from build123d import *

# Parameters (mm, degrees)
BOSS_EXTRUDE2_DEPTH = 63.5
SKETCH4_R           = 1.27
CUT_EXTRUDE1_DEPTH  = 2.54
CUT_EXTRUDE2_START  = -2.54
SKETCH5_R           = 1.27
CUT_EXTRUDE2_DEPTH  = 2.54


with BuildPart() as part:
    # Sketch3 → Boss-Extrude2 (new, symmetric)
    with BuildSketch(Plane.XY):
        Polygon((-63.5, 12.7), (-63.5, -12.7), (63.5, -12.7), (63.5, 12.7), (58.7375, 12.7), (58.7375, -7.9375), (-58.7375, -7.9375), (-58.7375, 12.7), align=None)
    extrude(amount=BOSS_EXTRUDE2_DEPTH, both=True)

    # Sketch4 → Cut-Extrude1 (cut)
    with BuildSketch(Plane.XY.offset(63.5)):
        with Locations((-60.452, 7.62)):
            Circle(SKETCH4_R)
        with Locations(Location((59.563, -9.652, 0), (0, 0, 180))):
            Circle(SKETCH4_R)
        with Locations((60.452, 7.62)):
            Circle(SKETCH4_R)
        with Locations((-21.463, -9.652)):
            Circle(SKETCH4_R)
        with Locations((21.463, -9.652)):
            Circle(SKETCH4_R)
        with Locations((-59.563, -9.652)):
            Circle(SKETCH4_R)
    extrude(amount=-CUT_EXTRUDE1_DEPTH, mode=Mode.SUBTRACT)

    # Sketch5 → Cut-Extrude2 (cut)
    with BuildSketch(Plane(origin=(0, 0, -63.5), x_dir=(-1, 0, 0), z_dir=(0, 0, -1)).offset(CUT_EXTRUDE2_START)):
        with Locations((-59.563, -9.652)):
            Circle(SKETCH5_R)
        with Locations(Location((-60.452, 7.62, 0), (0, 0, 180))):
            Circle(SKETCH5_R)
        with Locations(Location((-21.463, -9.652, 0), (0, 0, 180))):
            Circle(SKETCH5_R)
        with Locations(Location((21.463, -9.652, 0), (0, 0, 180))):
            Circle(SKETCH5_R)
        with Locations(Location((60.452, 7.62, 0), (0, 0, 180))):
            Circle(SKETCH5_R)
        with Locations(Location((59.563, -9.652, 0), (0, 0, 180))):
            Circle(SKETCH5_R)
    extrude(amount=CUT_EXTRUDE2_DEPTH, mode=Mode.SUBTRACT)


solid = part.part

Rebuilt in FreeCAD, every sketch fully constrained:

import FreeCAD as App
import Part
import Sketcher

V = App.Vector
Q = App.Units.Quantity

doc = App.newDocument("Part")
body = doc.addObject("PartDesign::Body", "Body")

# Sketch on XY plane
sketch1 = doc.addObject("Sketcher::SketchObject", "Sketch")
body.addObject(sketch1)
sketch1.AttachmentSupport = (doc.XY_Plane, [""])
sketch1.MapMode = "FlatFace"
sketch1.addGeometry([
    Part.LineSegment(V(-63.5, 12.7, 0), V(-63.5, -12.7, 0)),  # 0
    Part.LineSegment(V(-63.5, -12.7, 0), V(63.5, -12.7, 0)),  # 1
    Part.LineSegment(V(63.5, -12.7, 0), V(63.5, 12.7, 0)),  # 2
    Part.LineSegment(V(63.5, 12.7, 0), V(58.7, 12.7, 0)),  # 3
    Part.LineSegment(V(58.7, 12.7, 0), V(58.7, -7.9, 0)),  # 4
    Part.LineSegment(V(58.7, -7.9, 0), V(-58.7, -7.9, 0)),  # 5
    Part.LineSegment(V(-58.7, -7.9, 0), V(-58.7, 12.7, 0)),  # 6
    Part.LineSegment(V(-58.7, 12.7, 0), V(-63.5, 12.7, 0)),  # 7
], False)
sketch1.addConstraint([
    Sketcher.Constraint("Coincident", 0, 2, 1, 1),
    Sketcher.Constraint("Coincident", 1, 2, 2, 1),
    Sketcher.Constraint("Coincident", 2, 2, 3, 1),
    Sketcher.Constraint("Coincident", 3, 2, 4, 1),
    Sketcher.Constraint("Coincident", 4, 2, 5, 1),
    Sketcher.Constraint("Coincident", 5, 2, 6, 1),
    Sketcher.Constraint("Coincident", 6, 2, 7, 1),
    Sketcher.Constraint("Coincident", 7, 2, 0, 1),
    Sketcher.Constraint("Vertical", 0),
    Sketcher.Constraint("Horizontal", 1),
    Sketcher.Constraint("Vertical", 2),
    Sketcher.Constraint("Horizontal", 3),
    Sketcher.Constraint("Vertical", 4),
    Sketcher.Constraint("Horizontal", 5),
    Sketcher.Constraint("Vertical", 6),
    Sketcher.Constraint("Horizontal", 7),
    Sketcher.Constraint("Symmetric", 0, 2, 2, 2, -1, 1),
    Sketcher.Constraint("Symmetric", 3, 2, 6, 2, -2),
    Sketcher.Constraint("DistanceX", 1, 1, 1, 2, Q("5 in")),
    Sketcher.Constraint("DistanceY", 0, 2, 0, 1, Q("1 in")),
    Sketcher.Constraint("DistanceX", 3, 2, 3, 1, Q("0.1875 in")),
    Sketcher.Constraint("DistanceY", 4, 2, 4, 1, Q("0.8125 in")),
])
pad1 = doc.addObject("PartDesign::Pad", "Pad")
body.addObject(pad1)
pad1.Profile = sketch1
pad1.Length = Q("5 in")
pad1.Midplane = True

# Sketch on XY plane
sketch2 = doc.addObject("Sketcher::SketchObject", "Sketch001")
body.addObject(sketch2)
sketch2.AttachmentSupport = (doc.XY_Plane, [""])
sketch2.MapMode = "FlatFace"
sketch2.AttachmentOffset = App.Placement(V(0, 0, 2.5 * 25.4), App.Rotation())
sketch2.addGeometry([
    Part.Circle(V(-60.5, 7.6, 0), V(0, 0, 1), 1.3),  # 0
    Part.Circle(V(59.6, -9.7, 0), V(0, 0, 1), 1.3),  # 1
    Part.Circle(V(60.5, 7.6, 0), V(0, 0, 1), 1.3),  # 2
    Part.Circle(V(-21.5, -9.7, 0), V(0, 0, 1), 1.3),  # 3
    Part.Circle(V(21.5, -9.7, 0), V(0, 0, 1), 1.3),  # 4
    Part.Circle(V(-59.6, -9.7, 0), V(0, 0, 1), 1.3),  # 5
], False)
sketch2.addConstraint([
    Sketcher.Constraint("Equal", 0, 1),
    Sketcher.Constraint("Equal", 1, 2),
    Sketcher.Constraint("Equal", 2, 3),
    Sketcher.Constraint("Equal", 3, 4),
    Sketcher.Constraint("Equal", 4, 5),
    Sketcher.Constraint("Symmetric", 0, 3, 2, 3, -2),
    Sketcher.Constraint("Symmetric", 3, 3, 4, 3, -2),
    Sketcher.Constraint("Symmetric", 1, 3, 5, 3, -2),
    Sketcher.Constraint("Horizontal", 1, 3, 3, 3),
    Sketcher.Constraint("Diameter", 0, Q("0.1 in")),
    Sketcher.Constraint("DistanceY", -1, 1, 0, 3, Q("0.3 in")),
    Sketcher.Constraint("DistanceX", 4, 3, 1, 3, Q("1.5 in")),
    Sketcher.Constraint("DistanceX", 0, 3, -1, 1, Q("2.38 in")),
    Sketcher.Constraint("DistanceY", 1, 3, -1, 1, Q("0.38 in")),
    Sketcher.Constraint("DistanceX", 3, 3, 1, 3, Q("3.19 in")),
])
pocket1 = doc.addObject("PartDesign::Pocket", "Pocket")
body.addObject(pocket1)
pocket1.Profile = sketch2
pocket1.Length = Q("0.1 in")

# Sketch on XY plane
sketch3 = doc.addObject("Sketcher::SketchObject", "Sketch002")
body.addObject(sketch3)
sketch3.AttachmentSupport = (doc.XY_Plane, [""])
sketch3.MapMode = "FlatFace"
sketch3.AttachmentOffset = App.Placement(V(0, 0, -2.4 * 25.4), App.Rotation())
sketch3.addGeometry([
    Part.Circle(V(59.6, -9.7, 0), V(0, 0, 1), 1.3),  # 0
    Part.Circle(V(60.5, 7.6, 0), V(0, 0, 1), 1.3),  # 1
    Part.Circle(V(21.5, -9.7, 0), V(0, 0, 1), 1.3),  # 2
    Part.Circle(V(-21.5, -9.7, 0), V(0, 0, 1), 1.3),  # 3
    Part.Circle(V(-60.5, 7.6, 0), V(0, 0, 1), 1.3),  # 4
    Part.Circle(V(-59.6, -9.7, 0), V(0, 0, 1), 1.3),  # 5
], False)
sketch3.addConstraint([
    Sketcher.Constraint("Equal", 0, 1),
    Sketcher.Constraint("Equal", 1, 2),
    Sketcher.Constraint("Equal", 2, 3),
    Sketcher.Constraint("Equal", 3, 4),
    Sketcher.Constraint("Equal", 4, 5),
    Sketcher.Constraint("Symmetric", 2, 3, 3, 3, -2),
    Sketcher.Constraint("Symmetric", 1, 3, 4, 3, -2),
    Sketcher.Constraint("Symmetric", 0, 3, 5, 3, -2),
    Sketcher.Constraint("Horizontal", 0, 3, 2, 3),
    Sketcher.Constraint("Diameter", 0, Q("0.1 in")),
    Sketcher.Constraint("DistanceY", -1, 1, 1, 3, Q("0.3 in")),
    Sketcher.Constraint("DistanceX", 2, 3, 0, 3, Q("1.5 in")),
    Sketcher.Constraint("DistanceY", 0, 3, -1, 1, Q("0.38 in")),
    Sketcher.Constraint("DistanceX", -1, 1, 1, 3, Q("2.38 in")),
    Sketcher.Constraint("DistanceX", 3, 3, 2, 3, Q("1.69 in")),
])
pocket2 = doc.addObject("PartDesign::Pocket", "Pocket001")
body.addObject(pocket2)
pocket2.Profile = sketch3
pocket2.Length = Q("0.1 in")

doc.recompute()
